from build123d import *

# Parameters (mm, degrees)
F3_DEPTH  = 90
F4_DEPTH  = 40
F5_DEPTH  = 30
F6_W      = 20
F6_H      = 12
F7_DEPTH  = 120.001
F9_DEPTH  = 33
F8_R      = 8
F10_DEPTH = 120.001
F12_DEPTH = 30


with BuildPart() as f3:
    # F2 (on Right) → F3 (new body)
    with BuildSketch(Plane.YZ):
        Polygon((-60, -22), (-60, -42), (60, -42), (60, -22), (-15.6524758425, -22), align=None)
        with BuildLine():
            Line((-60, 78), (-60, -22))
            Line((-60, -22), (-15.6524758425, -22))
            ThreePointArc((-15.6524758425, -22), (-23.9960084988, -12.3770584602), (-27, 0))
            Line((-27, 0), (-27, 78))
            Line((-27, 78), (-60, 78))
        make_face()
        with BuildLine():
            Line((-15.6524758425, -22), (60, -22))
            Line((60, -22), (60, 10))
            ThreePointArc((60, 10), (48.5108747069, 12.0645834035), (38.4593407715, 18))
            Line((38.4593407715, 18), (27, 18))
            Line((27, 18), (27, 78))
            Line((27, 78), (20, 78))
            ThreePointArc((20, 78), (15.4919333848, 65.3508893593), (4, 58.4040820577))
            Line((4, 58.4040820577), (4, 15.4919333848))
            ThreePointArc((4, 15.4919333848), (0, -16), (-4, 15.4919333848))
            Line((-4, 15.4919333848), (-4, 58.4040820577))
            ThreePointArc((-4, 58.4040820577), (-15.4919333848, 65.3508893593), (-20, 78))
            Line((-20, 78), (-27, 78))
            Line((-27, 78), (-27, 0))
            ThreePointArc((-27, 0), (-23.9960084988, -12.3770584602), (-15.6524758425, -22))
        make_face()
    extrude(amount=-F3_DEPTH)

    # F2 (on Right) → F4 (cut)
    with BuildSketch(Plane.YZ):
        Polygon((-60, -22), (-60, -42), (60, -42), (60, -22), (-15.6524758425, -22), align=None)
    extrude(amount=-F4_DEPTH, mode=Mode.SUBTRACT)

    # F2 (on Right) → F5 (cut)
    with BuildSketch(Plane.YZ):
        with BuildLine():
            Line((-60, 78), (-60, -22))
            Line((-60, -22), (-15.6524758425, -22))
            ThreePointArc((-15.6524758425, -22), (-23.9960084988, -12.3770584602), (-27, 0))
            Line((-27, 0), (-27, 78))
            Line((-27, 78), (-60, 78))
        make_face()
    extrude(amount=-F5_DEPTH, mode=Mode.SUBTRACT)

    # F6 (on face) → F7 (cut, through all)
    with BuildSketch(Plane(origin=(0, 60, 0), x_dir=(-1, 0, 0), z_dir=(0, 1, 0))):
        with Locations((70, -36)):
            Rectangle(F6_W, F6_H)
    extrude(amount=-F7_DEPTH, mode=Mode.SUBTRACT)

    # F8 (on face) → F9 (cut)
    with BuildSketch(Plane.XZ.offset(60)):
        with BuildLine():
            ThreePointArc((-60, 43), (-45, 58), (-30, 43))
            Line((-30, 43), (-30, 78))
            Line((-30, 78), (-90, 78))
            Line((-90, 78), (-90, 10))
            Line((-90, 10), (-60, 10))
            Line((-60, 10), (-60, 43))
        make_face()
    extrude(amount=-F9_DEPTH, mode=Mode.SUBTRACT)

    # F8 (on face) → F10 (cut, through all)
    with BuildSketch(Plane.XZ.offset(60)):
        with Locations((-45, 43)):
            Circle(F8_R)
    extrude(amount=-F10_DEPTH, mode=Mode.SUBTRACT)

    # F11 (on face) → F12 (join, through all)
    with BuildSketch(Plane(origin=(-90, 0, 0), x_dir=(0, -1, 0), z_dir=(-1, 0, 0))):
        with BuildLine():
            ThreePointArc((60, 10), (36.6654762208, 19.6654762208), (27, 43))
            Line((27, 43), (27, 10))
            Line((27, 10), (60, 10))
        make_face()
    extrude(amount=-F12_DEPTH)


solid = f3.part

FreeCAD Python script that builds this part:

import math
import FreeCAD as App
import Part
import Sketcher
Q = App.Units.Quantity


def add_polygon(sketch, points):
    """Adds a closed chain of lines whose ends are joined by coincident constraints."""
    first, n = sketch.GeometryCount, len(points)
    for a, b in zip(points, points[1:] + points[:1]):
        sketch.addGeometry(Part.LineSegment(App.Vector(*a, 0), App.Vector(*b, 0)), False)
    for i in range(n):
        sketch.addConstraint(Sketcher.Constraint("Coincident", first + i, 2, first + (i + 1) % n, 1))

doc = App.newDocument("Part")
body = doc.addObject("PartDesign::Body", "Body")

sketch1 = body.newObject("Sketcher::SketchObject", "Sketch")
sketch1.AttachmentSupport = (doc.getObject("YZ_Plane"), [""])
sketch1.MapMode = "FlatFace"
sketch1.addGeometry([
    Part.LineSegment(App.Vector(-60, -42, 0), App.Vector(60, -42, 0)),
    Part.LineSegment(App.Vector(60, -42, 0), App.Vector(60, 10, 0)),
    Part.ArcOfCircle(Part.Circle(App.Vector(60, 43, 0), App.Vector(0, 0, 1), 33), math.radians(-130.749054), math.radians(-90)),
    Part.LineSegment(App.Vector(38.459341, 18, 0), App.Vector(27, 18, 0)),
    Part.LineSegment(App.Vector(27, 18, 0), App.Vector(27, 78, 0)),
    Part.LineSegment(App.Vector(27, 78, 0), App.Vector(20, 78, 0)),
    Part.ArcOfCircle(Part.Circle(App.Vector(0, 78, 0), App.Vector(0, 0, 1), 20), math.radians(-78.463041), math.radians(0)),
    Part.LineSegment(App.Vector(4, 58.404082, 0), App.Vector(4, 15.491933, 0)),
    Part.ArcOfCircle(Part.Circle(App.Vector(0, 0, 0), App.Vector(0, 0, 1), 16), math.radians(104.477512), math.radians(435.522488)),
    Part.LineSegment(App.Vector(-4, 15.491933, 0), App.Vector(-4, 58.404082, 0)),
    Part.ArcOfCircle(Part.Circle(App.Vector(0, 78, 0), App.Vector(0, 0, 1), 20), math.radians(180), math.radians(258.463041)),
    Part.LineSegment(App.Vector(-20, 78, 0), App.Vector(-60, 78, 0)),
    Part.LineSegment(App.Vector(-60, 78, 0), App.Vector(-60, -42, 0)),
], False)
sketch1.addConstraint([
    Sketcher.Constraint("Coincident", 0, 2, 1, 1),
    Sketcher.Constraint("Coincident", 1, 2, 2, 2),
    Sketcher.Constraint("Coincident", 2, 1, 3, 1),
    Sketcher.Constraint("Coincident", 3, 2, 4, 1),
    Sketcher.Constraint("Coincident", 4, 2, 5, 1),
    Sketcher.Constraint("Coincident", 5, 2, 6, 2),
    Sketcher.Constraint("Coincident", 6, 1, 7, 1),
    Sketcher.Constraint("Coincident", 7, 2, 8, 2),
    Sketcher.Constraint("Coincident", 8, 1, 9, 1),
    Sketcher.Constraint("Coincident", 9, 2, 10, 2),
    Sketcher.Constraint("Coincident", 10, 1, 11, 1),
    Sketcher.Constraint("Coincident", 11, 2, 12, 1),
    Sketcher.Constraint("Coincident", 12, 2, 0, 1),
    Sketcher.Constraint("Horizontal", 0),
    Sketcher.Constraint("Vertical", 1),
    Sketcher.Constraint("Horizontal", 3),
    Sketcher.Constraint("Vertical", 4),
    Sketcher.Constraint("Horizontal", 5),
    Sketcher.Constraint("Vertical", 7),
    Sketcher.Constraint("Vertical", 9),
    Sketcher.Constraint("Horizontal", 11),
    Sketcher.Constraint("Vertical", 12),
    Sketcher.Constraint("Coincident", 8, 3, -1, 1),
    Sketcher.Constraint("Coincident", 10, 3, 6, 3),
    Sketcher.Constraint("Equal", 6, 10),
    Sketcher.Constraint("Symmetric", 6, 1, 9, 2, -2),
    Sketcher.Constraint("Horizontal", 10, 3, 4, 2),
    Sketcher.Constraint("Horizontal", 5, 2, 10, 1),
    Sketcher.Constraint("Vertical", 2, 3, 0, 2),
    Sketcher.Constraint("Equal", 0, 12),
    Sketcher.Constraint("Radius", 2, Q("33 mm")),
    Sketcher.Constraint("Radius", 6, Q("20 mm")),
    Sketcher.Constraint("Radius", 8, Q("16 mm")),
    Sketcher.Constraint("DistanceX", 0, 1, 0, 2, Q("120 mm")),
    Sketcher.Constraint("DistanceX", 5, 2, 5, 1, Q("7 mm")),
    Sketcher.Constraint("DistanceX", 11, 2, 11, 1, Q("40 mm")),
    Sketcher.Constraint("DistanceY", 1, 1, 1, 2, Q("52 mm")),
    Sketcher.Constraint("DistanceY", 4, 1, 4, 2, Q("60 mm")),
    Sketcher.Constraint("DistanceY", -1, 1, 2, 3, Q("43 mm")),
    Sketcher.Constraint("DistanceX", -1, 1, 6, 1, Q("4 mm")),
])
pad1 = body.newObject("PartDesign::Pad", "Pad")
pad1.Profile = sketch1
pad1.Length = 90
pad1.Reversed = True

sketch2 = body.newObject("Sketcher::SketchObject", "Sketch001")
sketch2.AttachmentSupport = (doc.getObject("YZ_Plane"), [""])
sketch2.MapMode = "FlatFace"
add_polygon(sketch2, [(-60, -22), (-60, -42), (60, -42), (60, -22)])
sketch2.addConstraint([
    Sketcher.Constraint("Vertical", 0),
    Sketcher.Constraint("Horizontal", 1),
    Sketcher.Constraint("Vertical", 2),
    Sketcher.Constraint("Horizontal", 3),
    Sketcher.Constraint("DistanceX", 1, 1, 1, 2, Q("120 mm")),
    Sketcher.Constraint("DistanceY", 0, 2, 0, 1, Q("20 mm")),
    Sketcher.Constraint("DistanceX", 0, 2, -1, 1, Q("60 mm")),
    Sketcher.Constraint("DistanceY", 0, 2, -1, 1, Q("42 mm")),
])
pocket1 = body.newObject("PartDesign::Pocket", "Pocket")
pocket1.Profile = sketch2
pocket1.Length = 40

sketch3 = body.newObject("Sketcher::SketchObject", "Sketch002")
sketch3.AttachmentSupport = (doc.getObject("YZ_Plane"), [""])
sketch3.MapMode = "FlatFace"
sketch3.addGeometry([
    Part.LineSegment(App.Vector(-60, 78, 0), App.Vector(-60, -22, 0)),
    Part.LineSegment(App.Vector(-60, -22, 0), App.Vector(-15.652476, -22, 0)),
    Part.ArcOfCircle(Part.Circle(App.Vector(0, 0, 0), App.Vector(0, 0, 1), 27), math.radians(180), math.radians(234.569055)),
    Part.LineSegment(App.Vector(-27, 0, 0), App.Vector(-27, 78, 0)),
    Part.LineSegment(App.Vector(-27, 78, 0), App.Vector(-60, 78, 0)),
], False)
sketch3.addConstraint([
    Sketcher.Constraint("Coincident", 0, 2, 1, 1),
    Sketcher.Constraint("Coincident", 1, 2, 2, 2),
    Sketcher.Constraint("Tangent", 2, 1, 3, 1),
    Sketcher.Constraint("Coincident", 3, 2, 4, 1),
    Sketcher.Constraint("Coincident", 4, 2, 0, 1),
    Sketcher.Constraint("Vertical", 0),
    Sketcher.Constraint("Horizontal", 1),
    Sketcher.Constraint("Vertical", 3),
    Sketcher.Constraint("Horizontal", 4),
    Sketcher.Constraint("Coincident", 2, 3, -1, 1),
    Sketcher.Constraint("Radius", 2, Q("27 mm")),
    Sketcher.Constraint("DistanceX", 4, 2, 4, 1, Q("33 mm")),
    Sketcher.Constraint("DistanceY", 0, 2, 0, 1, Q("100 mm")),
    Sketcher.Constraint("DistanceY", 3, 1, 3, 2, Q("78 mm")),
])
pocket2 = body.newObject("PartDesign::Pocket", "Pocket001")
pocket2.Profile = sketch3
pocket2.Length = 30

sketch4 = body.newObject("Sketcher::SketchObject", "Sketch003")
sketch4.AttachmentSupport = (doc.getObject("XZ_Plane"), [""])
sketch4.MapMode = "FlatFace"
sketch4.AttachmentOffset = App.Placement(App.Vector(0, 0, -60), App.Rotation())
add_polygon(sketch4, [(-60, -30), (-60, -42), (-80, -42), (-80, -30)])
sketch4.addConstraint([
    Sketcher.Constraint("Vertical", 0),
    Sketcher.Constraint("Horizontal", 1),
    Sketcher.Constraint("Vertical", 2),
    Sketcher.Constraint("Horizontal", 3),
    Sketcher.Constraint("DistanceX", 1, 2, 1, 1, Q("20 mm")),
    Sketcher.Constraint("DistanceY", 0, 2, 0, 1, Q("12 mm")),
    Sketcher.Constraint("DistanceX", 0, 2, -1, 1, Q("60 mm")),
    Sketcher.Constraint("DistanceY", 0, 2, -1, 1, Q("42 mm")),
])
pocket3 = body.newObject("PartDesign::Pocket", "Pocket002")
pocket3.Profile = sketch4
pocket3.Type = "ThroughAll"
pocket3.Reversed = True

sketch5 = body.newObject("Sketcher::SketchObject", "Sketch004")
sketch5.AttachmentSupport = (doc.getObject("XZ_Plane"), [""])
sketch5.MapMode = "FlatFace"
sketch5.AttachmentOffset = App.Placement(App.Vector(0, 0, 60), App.Rotation())
sketch5.addGeometry([
    Part.ArcOfCircle(Part.Circle(App.Vector(-45, 43, 0), App.Vector(0, 0, 1), 15), math.radians(0), math.radians(180)),
    Part.LineSegment(App.Vector(-30, 43, 0), App.Vector(-30, 78, 0)),
    Part.LineSegment(App.Vector(-30, 78, 0), App.Vector(-90, 78, 0)),
    Part.LineSegment(App.Vector(-90, 78, 0), App.Vector(-90, 10, 0)),
    Part.LineSegment(App.Vector(-90, 10, 0), App.Vector(-60, 10, 0)),
    Part.LineSegment(App.Vector(-60, 10, 0), App.Vector(-60, 43, 0)),
], False)
sketch5.addConstraint([
    Sketcher.Constraint("Tangent", 0, 1, 1, 1),
    Sketcher.Constraint("Coincident", 1, 2, 2, 1),
    Sketcher.Constraint("Coincident", 2, 2, 3, 1),
    Sketcher.Constraint("Coincident", 3, 2, 4, 1),
    Sketcher.Constraint("Coincident", 4, 2, 5, 1),
    Sketcher.Constraint("Tangent", 5, 2, 0, 2),
    Sketcher.Constraint("Vertical", 1),
    Sketcher.Constraint("Horizontal", 2),
    Sketcher.Constraint("Vertical", 3),
    Sketcher.Constraint("Horizontal", 4),
    Sketcher.Constraint("Vertical", 5),
    Sketcher.Constraint("Radius", 0, Q("15 mm")),
    Sketcher.Constraint("DistanceX", 2, 2, 2, 1, Q("60 mm")),
    Sketcher.Constraint("DistanceY", 1, 1, 1, 2, Q("35 mm")),
    Sketcher.Constraint("DistanceY", 3, 2, 3, 1, Q("68 mm")),
    Sketcher.Constraint("DistanceX", 0, 3, -1, 1, Q("45 mm")),
    Sketcher.Constraint("DistanceY", -1, 1, 0, 3, Q("43 mm")),
])
pocket4 = body.newObject("PartDesign::Pocket", "Pocket003")
pocket4.Profile = sketch5
pocket4.Length = 33

sketch6 = body.newObject("Sketcher::SketchObject", "Sketch005")
sketch6.AttachmentSupport = (doc.getObject("XZ_Plane"), [""])
sketch6.MapMode = "FlatFace"
sketch6.AttachmentOffset = App.Placement(App.Vector(0, 0, 60), App.Rotation())
sketch6.addGeometry(Part.Circle(App.Vector(-45, 43, 0), App.Vector(0, 0, 1), 8), False)
sketch6.addConstraint([
    Sketcher.Constraint("Diameter", 0, Q("16 mm")),
    Sketcher.Constraint("DistanceX", 0, 3, -1, 1, Q("45 mm")),
    Sketcher.Constraint("DistanceY", -1, 1, 0, 3, Q("43 mm")),
])
pocket5 = body.newObject("PartDesign::Pocket", "Pocket004")
pocket5.Profile = sketch6
pocket5.Type = "ThroughAll"

sketch7 = body.newObject("Sketcher::SketchObject", "Sketch006")
sketch7.AttachmentSupport = (doc.getObject("YZ_Plane"), [""])
sketch7.MapMode = "FlatFace"
sketch7.AttachmentOffset = App.Placement(App.Vector(0, 0, -90), App.Rotation())
sketch7.addGeometry([
    Part.ArcOfCircle(Part.Circle(App.Vector(-60, 43, 0), App.Vector(0, 0, 1), 33), math.radians(-90), math.radians(0)),
    Part.LineSegment(App.Vector(-27, 43, 0), App.Vector(-27, 10, 0)),
    Part.LineSegment(App.Vector(-27, 10, 0), App.Vector(-60, 10, 0)),
], False)
sketch7.addConstraint([
    Sketcher.Constraint("Tangent", 0, 2, 1, 1),
    Sketcher.Constraint("Coincident", 1, 2, 2, 1),
    Sketcher.Constraint("Tangent", 2, 2, 0, 1),
    Sketcher.Constraint("Vertical", 1),
    Sketcher.Constraint("Horizontal", 2),
    Sketcher.Constraint("Radius", 0, Q("33 mm")),
    Sketcher.Constraint("DistanceX", 0, 3, -1, 1, Q("60 mm")),
    Sketcher.Constraint("DistanceY", -1, 1, 0, 3, Q("43 mm")),
])
pad2 = body.newObject("PartDesign::Pad", "Pad001")
pad2.Profile = sketch7
pad2.Length = 30

doc.recompute()
